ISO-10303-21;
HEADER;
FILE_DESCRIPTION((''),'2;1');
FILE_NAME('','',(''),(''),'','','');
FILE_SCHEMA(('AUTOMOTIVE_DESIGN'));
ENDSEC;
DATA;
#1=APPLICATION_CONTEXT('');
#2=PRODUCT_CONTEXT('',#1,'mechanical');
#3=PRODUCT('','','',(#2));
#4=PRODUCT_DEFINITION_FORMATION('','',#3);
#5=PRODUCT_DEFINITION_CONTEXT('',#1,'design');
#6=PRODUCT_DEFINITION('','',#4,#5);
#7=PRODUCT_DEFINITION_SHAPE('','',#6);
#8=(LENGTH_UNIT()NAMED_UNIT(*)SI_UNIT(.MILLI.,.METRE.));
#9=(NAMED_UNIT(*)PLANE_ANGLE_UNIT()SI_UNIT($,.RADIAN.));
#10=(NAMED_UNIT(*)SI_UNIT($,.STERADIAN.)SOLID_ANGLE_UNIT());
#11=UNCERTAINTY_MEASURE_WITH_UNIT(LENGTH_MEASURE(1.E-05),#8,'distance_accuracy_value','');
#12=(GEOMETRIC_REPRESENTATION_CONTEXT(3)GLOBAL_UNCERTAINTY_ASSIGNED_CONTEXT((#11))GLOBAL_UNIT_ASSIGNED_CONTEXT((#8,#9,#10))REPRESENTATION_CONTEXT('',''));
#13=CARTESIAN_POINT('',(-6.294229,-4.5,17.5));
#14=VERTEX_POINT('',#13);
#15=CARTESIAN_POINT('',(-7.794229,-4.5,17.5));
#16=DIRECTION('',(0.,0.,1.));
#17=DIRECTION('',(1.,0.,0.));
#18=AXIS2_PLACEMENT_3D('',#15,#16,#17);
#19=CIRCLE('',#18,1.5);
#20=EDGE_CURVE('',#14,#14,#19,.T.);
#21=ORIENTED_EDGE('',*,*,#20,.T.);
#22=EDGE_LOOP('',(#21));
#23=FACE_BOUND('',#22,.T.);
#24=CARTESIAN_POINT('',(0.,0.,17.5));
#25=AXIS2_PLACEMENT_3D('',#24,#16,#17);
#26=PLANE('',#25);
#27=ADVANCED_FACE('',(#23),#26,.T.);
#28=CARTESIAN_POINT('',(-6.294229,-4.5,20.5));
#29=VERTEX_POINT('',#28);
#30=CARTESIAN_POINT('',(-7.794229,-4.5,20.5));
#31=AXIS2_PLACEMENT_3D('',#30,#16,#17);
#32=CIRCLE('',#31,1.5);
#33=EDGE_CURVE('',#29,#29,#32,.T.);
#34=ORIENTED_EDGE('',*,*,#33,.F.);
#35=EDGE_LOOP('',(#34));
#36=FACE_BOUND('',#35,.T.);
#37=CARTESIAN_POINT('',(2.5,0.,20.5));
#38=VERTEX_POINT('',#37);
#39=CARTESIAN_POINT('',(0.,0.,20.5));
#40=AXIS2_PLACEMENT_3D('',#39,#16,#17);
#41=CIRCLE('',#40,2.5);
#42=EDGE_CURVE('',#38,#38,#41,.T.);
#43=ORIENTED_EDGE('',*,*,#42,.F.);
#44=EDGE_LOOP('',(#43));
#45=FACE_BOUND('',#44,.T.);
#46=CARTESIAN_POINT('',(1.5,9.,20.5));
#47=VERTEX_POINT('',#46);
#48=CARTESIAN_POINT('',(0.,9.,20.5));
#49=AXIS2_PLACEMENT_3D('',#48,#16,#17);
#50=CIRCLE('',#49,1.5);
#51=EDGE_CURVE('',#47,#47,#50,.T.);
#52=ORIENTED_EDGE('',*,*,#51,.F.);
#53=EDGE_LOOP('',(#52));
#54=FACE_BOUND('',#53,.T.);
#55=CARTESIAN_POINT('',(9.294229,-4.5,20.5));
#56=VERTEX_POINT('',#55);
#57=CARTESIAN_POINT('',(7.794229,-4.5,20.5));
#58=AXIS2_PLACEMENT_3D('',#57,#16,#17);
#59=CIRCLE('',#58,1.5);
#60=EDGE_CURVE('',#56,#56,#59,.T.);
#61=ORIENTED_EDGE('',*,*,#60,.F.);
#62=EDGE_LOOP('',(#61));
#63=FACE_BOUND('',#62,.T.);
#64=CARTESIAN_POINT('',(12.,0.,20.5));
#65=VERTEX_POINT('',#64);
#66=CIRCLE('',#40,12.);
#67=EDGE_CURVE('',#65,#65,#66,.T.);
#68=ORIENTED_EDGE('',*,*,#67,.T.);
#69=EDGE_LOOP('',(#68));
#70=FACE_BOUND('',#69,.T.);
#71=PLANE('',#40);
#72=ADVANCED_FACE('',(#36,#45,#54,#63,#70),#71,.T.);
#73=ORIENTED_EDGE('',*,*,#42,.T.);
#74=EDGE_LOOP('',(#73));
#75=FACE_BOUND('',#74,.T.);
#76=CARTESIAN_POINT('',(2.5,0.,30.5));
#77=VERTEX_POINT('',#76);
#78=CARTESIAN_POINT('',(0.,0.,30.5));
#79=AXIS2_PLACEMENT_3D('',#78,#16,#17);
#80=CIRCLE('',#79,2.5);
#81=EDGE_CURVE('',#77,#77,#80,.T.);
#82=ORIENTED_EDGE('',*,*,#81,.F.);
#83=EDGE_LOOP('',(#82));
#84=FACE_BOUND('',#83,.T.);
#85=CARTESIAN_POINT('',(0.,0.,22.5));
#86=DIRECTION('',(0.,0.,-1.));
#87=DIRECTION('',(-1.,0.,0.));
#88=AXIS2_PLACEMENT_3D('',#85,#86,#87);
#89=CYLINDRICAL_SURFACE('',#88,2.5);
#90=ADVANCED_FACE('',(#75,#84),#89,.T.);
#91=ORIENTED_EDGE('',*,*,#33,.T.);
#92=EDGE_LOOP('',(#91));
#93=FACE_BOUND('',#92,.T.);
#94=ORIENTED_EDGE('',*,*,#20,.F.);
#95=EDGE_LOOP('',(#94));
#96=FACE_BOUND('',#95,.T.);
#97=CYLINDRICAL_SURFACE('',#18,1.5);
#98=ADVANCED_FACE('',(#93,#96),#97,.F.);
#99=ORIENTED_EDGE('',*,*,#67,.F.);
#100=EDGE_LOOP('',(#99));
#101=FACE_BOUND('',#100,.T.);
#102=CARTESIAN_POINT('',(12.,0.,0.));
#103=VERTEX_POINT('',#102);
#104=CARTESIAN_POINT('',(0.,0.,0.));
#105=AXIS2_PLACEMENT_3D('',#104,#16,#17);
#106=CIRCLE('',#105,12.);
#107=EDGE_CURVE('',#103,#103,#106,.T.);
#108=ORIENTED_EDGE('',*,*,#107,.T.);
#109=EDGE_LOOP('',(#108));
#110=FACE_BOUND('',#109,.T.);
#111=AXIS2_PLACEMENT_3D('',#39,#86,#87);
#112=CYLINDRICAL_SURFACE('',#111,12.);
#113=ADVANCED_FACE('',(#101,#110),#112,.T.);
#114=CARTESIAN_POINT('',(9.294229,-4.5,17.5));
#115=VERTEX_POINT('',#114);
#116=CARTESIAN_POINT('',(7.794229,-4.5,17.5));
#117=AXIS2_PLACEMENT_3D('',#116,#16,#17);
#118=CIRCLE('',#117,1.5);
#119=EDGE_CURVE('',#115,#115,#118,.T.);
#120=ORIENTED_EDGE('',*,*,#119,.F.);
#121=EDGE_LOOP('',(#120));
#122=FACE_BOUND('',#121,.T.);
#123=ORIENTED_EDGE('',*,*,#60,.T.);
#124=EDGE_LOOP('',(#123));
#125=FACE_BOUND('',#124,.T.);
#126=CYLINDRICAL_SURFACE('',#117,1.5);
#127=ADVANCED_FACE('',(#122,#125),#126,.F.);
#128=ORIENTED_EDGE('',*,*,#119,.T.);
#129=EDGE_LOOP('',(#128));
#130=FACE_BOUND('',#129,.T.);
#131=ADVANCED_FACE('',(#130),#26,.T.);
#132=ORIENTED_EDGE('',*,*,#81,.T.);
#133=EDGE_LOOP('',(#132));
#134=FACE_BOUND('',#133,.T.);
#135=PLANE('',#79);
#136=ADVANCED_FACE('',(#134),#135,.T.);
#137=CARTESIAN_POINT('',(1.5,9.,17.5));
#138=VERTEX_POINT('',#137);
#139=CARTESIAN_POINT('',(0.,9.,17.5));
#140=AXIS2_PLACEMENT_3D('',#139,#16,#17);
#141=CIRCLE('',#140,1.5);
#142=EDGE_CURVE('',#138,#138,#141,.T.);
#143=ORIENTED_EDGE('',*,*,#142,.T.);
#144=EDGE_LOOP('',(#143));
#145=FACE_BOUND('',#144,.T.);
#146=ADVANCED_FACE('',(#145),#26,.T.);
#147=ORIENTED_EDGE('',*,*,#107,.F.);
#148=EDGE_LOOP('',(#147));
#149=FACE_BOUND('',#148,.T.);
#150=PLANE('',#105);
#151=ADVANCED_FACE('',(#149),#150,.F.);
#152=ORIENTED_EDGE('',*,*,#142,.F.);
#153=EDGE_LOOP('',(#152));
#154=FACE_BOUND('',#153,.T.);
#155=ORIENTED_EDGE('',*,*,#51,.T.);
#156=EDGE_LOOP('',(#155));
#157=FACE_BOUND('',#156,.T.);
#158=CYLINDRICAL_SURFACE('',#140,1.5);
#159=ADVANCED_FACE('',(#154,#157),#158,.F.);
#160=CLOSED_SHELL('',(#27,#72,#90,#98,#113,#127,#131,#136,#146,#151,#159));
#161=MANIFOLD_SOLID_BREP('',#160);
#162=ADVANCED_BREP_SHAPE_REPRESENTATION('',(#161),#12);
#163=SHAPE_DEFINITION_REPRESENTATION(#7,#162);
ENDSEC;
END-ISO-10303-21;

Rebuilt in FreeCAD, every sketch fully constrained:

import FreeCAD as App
import Part
import Sketcher

V = App.Vector
Q = App.Units.Quantity

doc = App.newDocument("Part")
body = doc.addObject("PartDesign::Body", "Body")

sketch1 = body.newObject("Sketcher::SketchObject", "Sketch")
sketch1.AttachmentSupport = (doc.getObject("XY_Plane"), [""])
sketch1.MapMode = "FlatFace"
sketch1.addGeometry(Part.Circle(V(0, 0, 0), V(0, 0, 1), 12), False)
sketch1.addConstraint([
    Sketcher.Constraint("Coincident", 0, 3, -1, 1),
    Sketcher.Constraint("Diameter", 0, Q("24 mm")),
])
pad1 = body.newObject("PartDesign::Pad", "Pad")
pad1.Profile = sketch1
pad1.Length = 20.5

sketch2 = body.newObject("Sketcher::SketchObject", "Sketch001")
sketch2.AttachmentSupport = (doc.getObject("XY_Plane"), [""])
sketch2.MapMode = "FlatFace"
sketch2.AttachmentOffset = App.Placement(V(0, 0, 20.5), App.Rotation())
sketch2.addGeometry(Part.Circle(V(0, 0, 0), V(0, 0, 1), 2.5), False)
sketch2.addConstraint([
    Sketcher.Constraint("Coincident", 0, 3, -1, 1),
    Sketcher.Constraint("Diameter", 0, Q("5 mm")),
])
pad2 = body.newObject("PartDesign::Pad", "Pad001")
pad2.Profile = sketch2
pad2.Length = 2

sketch3 = body.newObject("Sketcher::SketchObject", "Sketch002")
sketch3.AttachmentSupport = (doc.getObject("XY_Plane"), [""])
sketch3.MapMode = "FlatFace"
sketch3.AttachmentOffset = App.Placement(V(0, 0, 20.5), App.Rotation())
sketch3.addGeometry([
    Part.Circle(V(0, 9, 0), V(0, 0, 1), 1.5),
    Part.Circle(V(-7.8, -4.5, 0), V(0, 0, 1), 1.5),
    Part.Circle(V(7.8, -4.5, 0), V(0, 0, 1), 1.5),
], False)
sketch3.addConstraint([
    Sketcher.Constraint("Equal", 0, 1),
    Sketcher.Constraint("Equal", 1, 2),
    Sketcher.Constraint("Symmetric", 1, 3, 2, 3, -2),
    Sketcher.Constraint("PointOnObject", 0, 3, -2),
    Sketcher.Constraint("Diameter", 0, Q("3 mm")),
    Sketcher.Constraint("DistanceY", -1, 1, 0, 3, Q("9 mm")),
    Sketcher.Constraint("DistanceY", 1, 3, -1, 1, Q("4.5 mm")),
    Sketcher.Constraint("DistanceX", 1, 3, -1, 1, Q("7.794229 mm")),
])
pocket1 = body.newObject("PartDesign::Pocket", "Pocket")
pocket1.Profile = sketch3
pocket1.Length = 3

sketch4 = body.newObject("Sketcher::SketchObject", "Sketch003")
sketch4.AttachmentSupport = (doc.getObject("XY_Plane"), [""])
sketch4.MapMode = "FlatFace"
sketch4.AttachmentOffset = App.Placement(V(0, 0, 22.5), App.Rotation())
sketch4.addGeometry(Part.Circle(V(0, 0, 0), V(0, 0, 1), 2.5), False)
sketch4.addConstraint([
    Sketcher.Constraint("Coincident", 0, 3, -1, 1),
    Sketcher.Constraint("Diameter", 0, Q("5 mm")),
])
pad3 = body.newObject("PartDesign::Pad", "Pad002")
pad3.Profile = sketch4
pad3.Length = 8

doc.recompute()
